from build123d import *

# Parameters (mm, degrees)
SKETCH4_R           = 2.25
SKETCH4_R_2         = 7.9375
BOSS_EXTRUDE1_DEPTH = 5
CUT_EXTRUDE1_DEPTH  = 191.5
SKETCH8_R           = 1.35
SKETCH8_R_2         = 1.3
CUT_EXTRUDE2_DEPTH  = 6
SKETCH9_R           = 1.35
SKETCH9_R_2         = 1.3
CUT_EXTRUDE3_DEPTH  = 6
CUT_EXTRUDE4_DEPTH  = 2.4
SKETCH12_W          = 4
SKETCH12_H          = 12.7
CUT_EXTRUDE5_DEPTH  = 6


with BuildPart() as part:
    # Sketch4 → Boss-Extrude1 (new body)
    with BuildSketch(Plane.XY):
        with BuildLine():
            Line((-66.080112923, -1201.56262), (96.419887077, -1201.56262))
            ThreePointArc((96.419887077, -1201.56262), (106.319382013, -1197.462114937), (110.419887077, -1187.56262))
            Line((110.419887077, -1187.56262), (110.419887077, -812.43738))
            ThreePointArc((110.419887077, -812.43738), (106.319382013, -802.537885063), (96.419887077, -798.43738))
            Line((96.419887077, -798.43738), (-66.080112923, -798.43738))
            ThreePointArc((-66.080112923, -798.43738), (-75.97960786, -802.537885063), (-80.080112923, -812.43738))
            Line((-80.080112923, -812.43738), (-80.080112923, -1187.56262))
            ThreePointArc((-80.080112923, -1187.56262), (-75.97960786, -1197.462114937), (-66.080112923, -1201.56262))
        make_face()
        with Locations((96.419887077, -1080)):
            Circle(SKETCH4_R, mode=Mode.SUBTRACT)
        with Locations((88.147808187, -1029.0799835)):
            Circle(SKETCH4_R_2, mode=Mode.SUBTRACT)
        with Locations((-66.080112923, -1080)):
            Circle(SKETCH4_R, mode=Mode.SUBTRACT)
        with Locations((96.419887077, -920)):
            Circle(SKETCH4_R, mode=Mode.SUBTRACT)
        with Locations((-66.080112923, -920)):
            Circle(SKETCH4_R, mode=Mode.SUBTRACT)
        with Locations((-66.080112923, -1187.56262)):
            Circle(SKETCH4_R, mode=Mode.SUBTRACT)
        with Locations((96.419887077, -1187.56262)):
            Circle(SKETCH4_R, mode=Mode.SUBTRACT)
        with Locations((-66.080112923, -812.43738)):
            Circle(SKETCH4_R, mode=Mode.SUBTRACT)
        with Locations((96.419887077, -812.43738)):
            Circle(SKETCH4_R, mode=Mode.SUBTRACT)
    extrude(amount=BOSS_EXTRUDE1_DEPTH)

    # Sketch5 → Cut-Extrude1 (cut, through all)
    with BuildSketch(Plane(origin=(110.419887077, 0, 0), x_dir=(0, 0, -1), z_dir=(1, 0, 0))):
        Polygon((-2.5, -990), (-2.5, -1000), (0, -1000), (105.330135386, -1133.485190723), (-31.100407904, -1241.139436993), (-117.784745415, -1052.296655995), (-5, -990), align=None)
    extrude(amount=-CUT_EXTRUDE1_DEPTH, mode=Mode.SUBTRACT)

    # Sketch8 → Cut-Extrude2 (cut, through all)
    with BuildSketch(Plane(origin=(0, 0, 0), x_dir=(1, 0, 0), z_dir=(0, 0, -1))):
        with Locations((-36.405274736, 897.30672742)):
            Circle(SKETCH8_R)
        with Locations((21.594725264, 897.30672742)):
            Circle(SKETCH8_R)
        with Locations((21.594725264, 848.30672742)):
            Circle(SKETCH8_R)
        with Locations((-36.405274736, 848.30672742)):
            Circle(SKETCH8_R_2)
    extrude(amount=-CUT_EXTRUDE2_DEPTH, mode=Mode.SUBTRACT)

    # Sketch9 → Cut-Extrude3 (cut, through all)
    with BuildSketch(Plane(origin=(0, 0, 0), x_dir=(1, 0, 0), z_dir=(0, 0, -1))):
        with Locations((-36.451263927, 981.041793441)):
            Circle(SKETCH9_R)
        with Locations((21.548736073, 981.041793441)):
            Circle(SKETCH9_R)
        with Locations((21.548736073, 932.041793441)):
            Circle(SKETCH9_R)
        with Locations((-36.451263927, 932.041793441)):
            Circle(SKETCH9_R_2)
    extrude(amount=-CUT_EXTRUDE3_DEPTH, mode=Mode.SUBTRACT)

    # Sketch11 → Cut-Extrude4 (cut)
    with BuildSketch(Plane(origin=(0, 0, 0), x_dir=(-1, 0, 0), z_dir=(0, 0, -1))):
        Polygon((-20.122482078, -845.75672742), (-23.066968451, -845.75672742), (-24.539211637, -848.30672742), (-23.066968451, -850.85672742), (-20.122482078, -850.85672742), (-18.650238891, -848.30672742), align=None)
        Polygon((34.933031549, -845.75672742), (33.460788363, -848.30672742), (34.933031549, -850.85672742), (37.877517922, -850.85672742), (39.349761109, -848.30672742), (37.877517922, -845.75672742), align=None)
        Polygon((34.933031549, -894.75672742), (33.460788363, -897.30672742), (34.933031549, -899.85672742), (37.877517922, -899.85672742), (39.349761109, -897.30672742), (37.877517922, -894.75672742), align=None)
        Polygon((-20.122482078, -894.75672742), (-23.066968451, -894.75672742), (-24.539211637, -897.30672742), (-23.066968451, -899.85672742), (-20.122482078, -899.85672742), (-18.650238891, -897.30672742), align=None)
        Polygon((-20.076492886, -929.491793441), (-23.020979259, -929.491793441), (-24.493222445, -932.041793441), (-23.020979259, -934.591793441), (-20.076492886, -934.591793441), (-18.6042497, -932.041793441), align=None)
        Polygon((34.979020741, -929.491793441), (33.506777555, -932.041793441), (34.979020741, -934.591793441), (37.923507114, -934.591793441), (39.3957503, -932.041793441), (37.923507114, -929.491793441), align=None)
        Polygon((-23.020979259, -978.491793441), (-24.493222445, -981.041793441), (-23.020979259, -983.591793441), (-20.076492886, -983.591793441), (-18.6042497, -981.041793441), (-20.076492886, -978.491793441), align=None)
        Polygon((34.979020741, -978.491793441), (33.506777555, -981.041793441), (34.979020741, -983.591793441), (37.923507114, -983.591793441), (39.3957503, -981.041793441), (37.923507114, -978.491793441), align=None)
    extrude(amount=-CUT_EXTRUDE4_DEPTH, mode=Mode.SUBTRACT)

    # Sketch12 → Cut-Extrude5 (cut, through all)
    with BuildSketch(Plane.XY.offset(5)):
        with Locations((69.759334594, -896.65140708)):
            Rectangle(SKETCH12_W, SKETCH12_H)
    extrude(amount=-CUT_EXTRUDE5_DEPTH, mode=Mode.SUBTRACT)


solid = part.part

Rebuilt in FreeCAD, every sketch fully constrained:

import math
import FreeCAD as App
import Part
import Sketcher
from FreeCAD import Vector
Q = App.Units.Quantity

doc = App.newDocument("Part")
body = doc.addObject("PartDesign::Body", "Body")

sketch1 = doc.addObject("Sketcher::SketchObject", "Sketch")
body.addObject(sketch1)
sketch1.AttachmentSupport = (doc.XY_Plane, [""])
sketch1.MapMode = "FlatFace"
sketch1.addGeometry(Part.LineSegment(Vector(-66.080113, -1201.56262, 0), Vector(96.419887, -1201.56262, 0)), False)
sketch1.addGeometry(Part.ArcOfCircle(Part.Circle(Vector(96.419887, -1187.56262, 0), Vector(0, 0, 1), 14), math.radians(-90), math.radians(0)), False)
sketch1.addGeometry(Part.LineSegment(Vector(110.419887, -1187.56262, 0), Vector(110.419887, -812.43738, 0)), False)
sketch1.addGeometry(Part.ArcOfCircle(Part.Circle(Vector(96.419887, -812.43738, 0), Vector(0, 0, 1), 14), math.radians(0), math.radians(90)), False)
sketch1.addGeometry(Part.LineSegment(Vector(96.419887, -798.43738, 0), Vector(-66.080113, -798.43738, 0)), False)
sketch1.addGeometry(Part.ArcOfCircle(Part.Circle(Vector(-66.080113, -812.43738, 0), Vector(0, 0, 1), 14), math.radians(90), math.radians(180)), False)
sketch1.addGeometry(Part.LineSegment(Vector(-80.080113, -812.43738, 0), Vector(-80.080113, -1187.56262, 0)), False)
sketch1.addGeometry(Part.ArcOfCircle(Part.Circle(Vector(-66.080113, -1187.56262, 0), Vector(0, 0, 1), 14), math.radians(180), math.radians(270)), False)
sketch1.addGeometry(Part.Circle(Vector(-66.080113, -1187.56262, 0), Vector(0, 0, 1), 2.25), False)
sketch1.addGeometry(Part.Circle(Vector(-66.080113, -1080, 0), Vector(0, 0, 1), 2.25), False)
sketch1.addGeometry(Part.Circle(Vector(96.419887, -1187.56262, 0), Vector(0, 0, 1), 2.25), False)
sketch1.addGeometry(Part.Circle(Vector(96.419887, -1080, 0), Vector(0, 0, 1), 2.25), False)
sketch1.addGeometry(Part.Circle(Vector(88.147808, -1029.079984, 0), Vector(0, 0, 1), 7.9375), False)
sketch1.addGeometry(Part.Circle(Vector(-66.080113, -920, 0), Vector(0, 0, 1), 2.25), False)
sketch1.addGeometry(Part.Circle(Vector(-66.080113, -812.43738, 0), Vector(0, 0, 1), 2.25), False)
sketch1.addGeometry(Part.Circle(Vector(96.419887, -920, 0), Vector(0, 0, 1), 2.25), False)
sketch1.addGeometry(Part.Circle(Vector(96.419887, -812.43738, 0), Vector(0, 0, 1), 2.25), False)
sketch1.addConstraint(Sketcher.Constraint("Tangent", 0, 2, 1, 1))
sketch1.addConstraint(Sketcher.Constraint("Tangent", 1, 2, 2, 1))
sketch1.addConstraint(Sketcher.Constraint("Tangent", 2, 2, 3, 1))
sketch1.addConstraint(Sketcher.Constraint("Tangent", 3, 2, 4, 1))
sketch1.addConstraint(Sketcher.Constraint("Tangent", 4, 2, 5, 1))
sketch1.addConstraint(Sketcher.Constraint("Tangent", 5, 2, 6, 1))
sketch1.addConstraint(Sketcher.Constraint("Tangent", 6, 2, 7, 1))
sketch1.addConstraint(Sketcher.Constraint("Tangent", 7, 2, 0, 1))
sketch1.addConstraint(Sketcher.Constraint("Horizontal", 0))
sketch1.addConstraint(Sketcher.Constraint("Vertical", 2))
sketch1.addConstraint(Sketcher.Constraint("Horizontal", 4))
sketch1.addConstraint(Sketcher.Constraint("Vertical", 6))
sketch1.addConstraint(Sketcher.Constraint("Coincident", 8, 3, 7, 3))
sketch1.addConstraint(Sketcher.Constraint("Coincident", 10, 3, 1, 3))
sketch1.addConstraint(Sketcher.Constraint("Coincident", 14, 3, 5, 3))
sketch1.addConstraint(Sketcher.Constraint("Coincident", 16, 3, 3, 3))
sketch1.addConstraint(Sketcher.Constraint("Equal", 1, 3))
sketch1.addConstraint(Sketcher.Constraint("Equal", 3, 5))
sketch1.addConstraint(Sketcher.Constraint("Equal", 5, 7))
sketch1.addConstraint(Sketcher.Constraint("Equal", 8, 9))
sketch1.addConstraint(Sketcher.Constraint("Equal", 9, 10))
sketch1.addConstraint(Sketcher.Constraint("Equal", 10, 11))
sketch1.addConstraint(Sketcher.Constraint("Equal", 11, 13))
sketch1.addConstraint(Sketcher.Constraint("Equal", 13, 14))
sketch1.addConstraint(Sketcher.Constraint("Equal", 14, 15))
sketch1.addConstraint(Sketcher.Constraint("Equal", 15, 16))
sketch1.addConstraint(Sketcher.Constraint("Horizontal", 9, 3, 11, 3))
sketch1.addConstraint(Sketcher.Constraint("Horizontal", 13, 3, 15, 3))
sketch1.addConstraint(Sketcher.Constraint("Vertical", 8, 3, 9, 3))
sketch1.addConstraint(Sketcher.Constraint("Vertical", 10, 3, 11, 3))
sketch1.addConstraint(Sketcher.Constraint("Vertical", 9, 3, 13, 3))
sketch1.addConstraint(Sketcher.Constraint("Vertical", 11, 3, 15, 3))
sketch1.addConstraint(Sketcher.Constraint("Radius", 1, 14.0))
sketch1.addConstraint(Sketcher.Constraint("Diameter", 8, 4.5))
sketch1.addConstraint(Sketcher.Constraint("Diameter", 12, 15.875))
sketch1.addConstraint(Sketcher.Constraint("DistanceX", 0, 1, 0, 2, 162.5))
sketch1.addConstraint(Sketcher.Constraint("DistanceY", 9, 3, -1, 1, 1080.0))
sketch1.addConstraint(Sketcher.Constraint("DistanceY", 13, 3, -1, 1, 920.0))
sketch1.addConstraint(Sketcher.Constraint("DistanceY", 2, 1, 2, 2, 375.12524))
sketch1.addConstraint(Sketcher.Constraint("DistanceY", 1, 3, -1, 1, 1187.56262))
sketch1.addConstraint(Sketcher.Constraint("DistanceX", -1, 1, 12, 3, 88.147808))
sketch1.addConstraint(Sketcher.Constraint("DistanceX", 12, 3, 11, 3, 8.272079))
sketch1.addConstraint(Sketcher.Constraint("DistanceY", 12, 3, -1, 1, 1029.079984))
pad1 = doc.addObject("PartDesign::Pad", "Pad")
body.addObject(pad1)
pad1.Profile = sketch1
pad1.Length = 5

sketch2 = doc.addObject("Sketcher::SketchObject", "Sketch001")
body.addObject(sketch2)
sketch2.AttachmentSupport = (doc.YZ_Plane, [""])
sketch2.MapMode = "FlatFace"
sketch2.AttachmentOffset = App.Placement(Vector(0, 0, 110.419887), App.Rotation())
sketch2.addGeometry(Part.LineSegment(Vector(-1000, 2.5, 0), Vector(-990, 2.5, 0)), False)
sketch2.addGeometry(Part.LineSegment(Vector(-990, 2.5, 0), Vector(-990, 5, 0)), False)
sketch2.addGeometry(Part.LineSegment(Vector(-990, 5, 0), Vector(-1052.296656, 117.784745, 0)), False)
sketch2.addGeometry(Part.LineSegment(Vector(-1052.296656, 117.784745, 0), Vector(-1241.139437, 31.100408, 0)), False)
sketch2.addGeometry(Part.LineSegment(Vector(-1241.139437, 31.100408, 0), Vector(-1133.485191, -105.330135, 0)), False)
sketch2.addGeometry(Part.LineSegment(Vector(-1133.485191, -105.330135, 0), Vector(-1000, 0, 0)), False)
sketch2.addGeometry(Part.LineSegment(Vector(-1000, 0, 0), Vector(-1000, 2.5, 0)), False)
sketch2.addConstraint(Sketcher.Constraint("Coincident", 0, 2, 1, 1))
sketch2.addConstraint(Sketcher.Constraint("Coincident", 1, 2, 2, 1))
sketch2.addConstraint(Sketcher.Constraint("Coincident", 2, 2, 3, 1))
sketch2.addConstraint(Sketcher.Constraint("Coincident", 3, 2, 4, 1))
sketch2.addConstraint(Sketcher.Constraint("Coincident", 4, 2, 5, 1))
sketch2.addConstraint(Sketcher.Constraint("Coincident", 5, 2, 6, 1))
sketch2.addConstraint(Sketcher.Constraint("Coincident", 6, 2, 0, 1))
sketch2.addConstraint(Sketcher.Constraint("Horizontal", 0))
sketch2.addConstraint(Sketcher.Constraint("Vertical", 1))
sketch2.addConstraint(Sketcher.Constraint("Vertical", 6))
sketch2.addConstraint(Sketcher.Constraint("PointOnObject", 5, 2, -1))
sketch2.addConstraint(Sketcher.Constraint("Perpendicular", 4, 5))
sketch2.addConstraint(Sketcher.Constraint("Equal", 1, 6))
sketch2.addConstraint(Sketcher.Constraint("DistanceX", 0, 1, 0, 2, 10.0))
sketch2.addConstraint(Sketcher.Constraint("DistanceY", 1, 1, 1, 2, 2.5))
sketch2.addConstraint(Sketcher.Constraint("DistanceX", 0, 2, -1, 1, 990.0))
sketch2.addConstraint(Sketcher.Constraint("Distance", 3, 207.787801))
sketch2.addConstraint(Sketcher.Constraint("DistanceX", 4, 2, -1, 1, 1133.485191))
sketch2.addConstraint(Sketcher.Constraint("DistanceX", 3, 2, 2, 2, 188.842781))
sketch2.addConstraint(Sketcher.Constraint("DistanceY", 4, 2, 2, 2, 223.114881))
sketch2.addConstraint(Sketcher.Constraint("Distance", 2, 128.845924))
pocket1 = doc.addObject("PartDesign::Pocket", "Pocket")
body.addObject(pocket1)
pocket1.Profile = sketch2
pocket1.Type = "ThroughAll"

sketch3 = doc.addObject("Sketcher::SketchObject", "Sketch002")
body.addObject(sketch3)
sketch3.AttachmentSupport = (doc.XY_Plane, [""])
sketch3.MapMode = "FlatFace"
sketch3.addGeometry(Part.Circle(Vector(-36.405275, -897.306727, 0), Vector(0, 0, 1), 1.35), False)
sketch3.addGeometry(Part.Circle(Vector(21.594725, -897.306727, 0), Vector(0, 0, 1), 1.35), False)
sketch3.addGeometry(Part.Circle(Vector(21.594725, -848.306727, 0), Vector(0, 0, 1), 1.35), False)
sketch3.addGeometry(Part.Circle(Vector(-36.405275, -848.306727, 0), Vector(0, 0, 1), 1.3), False)
sketch3.addConstraint(Sketcher.Constraint("Equal", 0, 1))
sketch3.addConstraint(Sketcher.Constraint("Equal", 1, 2))
sketch3.addConstraint(Sketcher.Constraint("Horizontal", 0, 3, 1, 3))
sketch3.addConstraint(Sketcher.Constraint("Horizontal", 2, 3, 3, 3))
sketch3.addConstraint(Sketcher.Constraint("Vertical", 1, 3, 2, 3))
sketch3.addConstraint(Sketcher.Constraint("Vertical", 0, 3, 3, 3))
sketch3.addConstraint(Sketcher.Constraint("Diameter", 0, 2.7))
sketch3.addConstraint(Sketcher.Constraint("Diameter", 3, 2.6))
sketch3.addConstraint(Sketcher.Constraint("DistanceX", 0, 3, 1, 3, 58.0))
sketch3.addConstraint(Sketcher.Constraint("DistanceY", 1, 3, 2, 3, 49.0))
sketch3.addConstraint(Sketcher.Constraint("DistanceX", 0, 3, -1, 1, 36.405275))
sketch3.addConstraint(Sketcher.Constraint("DistanceY", 0, 3, -1, 1, 897.306727))
pocket2 = doc.addObject("PartDesign::Pocket", "Pocket001")
body.addObject(pocket2)
pocket2.Profile = sketch3
pocket2.Type = "ThroughAll"
pocket2.Reversed = True

sketch4 = doc.addObject("Sketcher::SketchObject", "Sketch003")
body.addObject(sketch4)
sketch4.AttachmentSupport = (doc.XY_Plane, [""])
sketch4.MapMode = "FlatFace"
sketch4.addGeometry(Part.Circle(Vector(-36.451264, -981.041793, 0), Vector(0, 0, 1), 1.35), False)
sketch4.addGeometry(Part.Circle(Vector(21.548736, -981.041793, 0), Vector(0, 0, 1), 1.35), False)
sketch4.addGeometry(Part.Circle(Vector(21.548736, -932.041793, 0), Vector(0, 0, 1), 1.35), False)
sketch4.addGeometry(Part.Circle(Vector(-36.451264, -932.041793, 0), Vector(0, 0, 1), 1.3), False)
sketch4.addConstraint(Sketcher.Constraint("Equal", 0, 1))
sketch4.addConstraint(Sketcher.Constraint("Equal", 1, 2))
sketch4.addConstraint(Sketcher.Constraint("Horizontal", 0, 3, 1, 3))
sketch4.addConstraint(Sketcher.Constraint("Horizontal", 2, 3, 3, 3))
sketch4.addConstraint(Sketcher.Constraint("Vertical", 1, 3, 2, 3))
sketch4.addConstraint(Sketcher.Constraint("Vertical", 0, 3, 3, 3))
sketch4.addConstraint(Sketcher.Constraint("Diameter", 0, 2.7))
sketch4.addConstraint(Sketcher.Constraint("Diameter", 3, 2.6))
sketch4.addConstraint(Sketcher.Constraint("DistanceX", 0, 3, 1, 3, 58.0))
sketch4.addConstraint(Sketcher.Constraint("DistanceY", 1, 3, 2, 3, 49.0))
sketch4.addConstraint(Sketcher.Constraint("DistanceX", 0, 3, -1, 1, 36.451264))
sketch4.addConstraint(Sketcher.Constraint("DistanceY", 0, 3, -1, 1, 981.041793))
pocket3 = doc.addObject("PartDesign::Pocket", "Pocket002")
body.addObject(pocket3)
pocket3.Profile = sketch4
pocket3.Type = "ThroughAll"
pocket3.Reversed = True

sketch5 = doc.addObject("Sketcher::SketchObject", "Sketch004")
body.addObject(sketch5)
sketch5.AttachmentSupport = (doc.XY_Plane, [""])
sketch5.MapMode = "FlatFace"
sketch5.addGeometry(Part.LineSegment(Vector(20.122482, -845.756727, 0), Vector(23.066968, -845.756727, 0)), False)
sketch5.addGeometry(Part.LineSegment(Vector(23.066968, -845.756727, 0), Vector(24.539212, -848.306727, 0)), False)
sketch5.addGeometry(Part.LineSegment(Vector(24.539212, -848.306727, 0), Vector(23.066968, -850.856727, 0)), False)
sketch5.addGeometry(Part.LineSegment(Vector(23.066968, -850.856727, 0), Vector(20.122482, -850.856727, 0)), False)
sketch5.addGeometry(Part.LineSegment(Vector(20.122482, -850.856727, 0), Vector(18.650239, -848.306727, 0)), False)
sketch5.addGeometry(Part.LineSegment(Vector(18.650239, -848.306727, 0), Vector(20.122482, -845.756727, 0)), False)
sketch5.addGeometry(Part.LineSegment(Vector(-34.933032, -845.756727, 0), Vector(-33.460788, -848.306727, 0)), False)
sketch5.addGeometry(Part.LineSegment(Vector(-33.460788, -848.306727, 0), Vector(-34.933032, -850.856727, 0)), False)
sketch5.addGeometry(Part.LineSegment(Vector(-34.933032, -850.856727, 0), Vector(-37.877518, -850.856727, 0)), False)
sketch5.addGeometry(Part.LineSegment(Vector(-37.877518, -850.856727, 0), Vector(-39.349761, -848.306727, 0)), False)
sketch5.addGeometry(Part.LineSegment(Vector(-39.349761, -848.306727, 0), Vector(-37.877518, -845.756727, 0)), False)
sketch5.addGeometry(Part.LineSegment(Vector(-37.877518, -845.756727, 0), Vector(-34.933032, -845.756727, 0)), False)
sketch5.addGeometry(Part.LineSegment(Vector(-34.933032, -894.756727, 0), Vector(-33.460788, -897.306727, 0)), False)
sketch5.addGeometry(Part.LineSegment(Vector(-33.460788, -897.306727, 0), Vector(-34.933032, -899.856727, 0)), False)
sketch5.addGeometry(Part.LineSegment(Vector(-34.933032, -899.856727, 0), Vector(-37.877518, -899.856727, 0)), False)
sketch5.addGeometry(Part.LineSegment(Vector(-37.877518, -899.856727, 0), Vector(-39.349761, -897.306727, 0)), False)
sketch5.addGeometry(Part.LineSegment(Vector(-39.349761, -897.306727, 0), Vector(-37.877518, -894.756727, 0)), False)
sketch5.addGeometry(Part.LineSegment(Vector(-37.877518, -894.756727, 0), Vector(-34.933032, -894.756727, 0)), False)
sketch5.addGeometry(Part.LineSegment(Vector(20.122482, -894.756727, 0), Vector(23.066968, -894.756727, 0)), False)
sketch5.addGeometry(Part.LineSegment(Vector(23.066968, -894.756727, 0), Vector(24.539212, -897.306727, 0)), False)
sketch5.addGeometry(Part.LineSegment(Vector(24.539212, -897.306727, 0), Vector(23.066968, -899.856727, 0)), False)
sketch5.addGeometry(Part.LineSegment(Vector(23.066968, -899.856727, 0), Vector(20.122482, -899.856727, 0)), False)
sketch5.addGeometry(Part.LineSegment(Vector(20.122482, -899.856727, 0), Vector(18.650239, -897.306727, 0)), False)
sketch5.addGeometry(Part.LineSegment(Vector(18.650239, -897.306727, 0), Vector(20.122482, -894.756727, 0)), False)
sketch5.addGeometry(Part.LineSegment(Vector(20.076493, -929.491793, 0), Vector(23.020979, -929.491793, 0)), False)
sketch5.addGeometry(Part.LineSegment(Vector(23.020979, -929.491793, 0), Vector(24.493222, -932.041793, 0)), False)
sketch5.addGeometry(Part.LineSegment(Vector(24.493222, -932.041793, 0), Vector(23.020979, -934.591793, 0)), False)
sketch5.addGeometry(Part.LineSegment(Vector(23.020979, -934.591793, 0), Vector(20.076493, -934.591793, 0)), False)
sketch5.addGeometry(Part.LineSegment(Vector(20.076493, -934.591793, 0), Vector(18.60425, -932.041793, 0)), False)
sketch5.addGeometry(Part.LineSegment(Vector(18.60425, -932.041793, 0), Vector(20.076493, -929.491793, 0)), False)
sketch5.addGeometry(Part.LineSegment(Vector(-34.979021, -929.491793, 0), Vector(-33.506778, -932.041793, 0)), False)
sketch5.addGeometry(Part.LineSegment(Vector(-33.506778, -932.041793, 0), Vector(-34.979021, -934.591793, 0)), False)
sketch5.addGeometry(Part.LineSegment(Vector(-34.979021, -934.591793, 0), Vector(-37.923507, -934.591793, 0)), False)
sketch5.addGeometry(Part.LineSegment(Vector(-37.923507, -934.591793, 0), Vector(-39.39575, -932.041793, 0)), False)
sketch5.addGeometry(Part.LineSegment(Vector(-39.39575, -932.041793, 0), Vector(-37.923507, -929.491793, 0)), False)
sketch5.addGeometry(Part.LineSegment(Vector(-37.923507, -929.491793, 0), Vector(-34.979021, -929.491793, 0)), False)
sketch5.addGeometry(Part.LineSegment(Vector(23.020979, -978.491793, 0), Vector(24.493222, -981.041793, 0)), False)
sketch5.addGeometry(Part.LineSegment(Vector(24.493222, -981.041793, 0), Vector(23.020979, -983.591793, 0)), False)
sketch5.addGeometry(Part.LineSegment(Vector(23.020979, -983.591793, 0), Vector(20.076493, -983.591793, 0)), False)
sketch5.addGeometry(Part.LineSegment(Vector(20.076493, -983.591793, 0), Vector(18.60425, -981.041793, 0)), False)
sketch5.addGeometry(Part.LineSegment(Vector(18.60425, -981.041793, 0), Vector(20.076493, -978.491793, 0)), False)
sketch5.addGeometry(Part.LineSegment(Vector(20.076493, -978.491793, 0), Vector(23.020979, -978.491793, 0)), False)
sketch5.addGeometry(Part.LineSegment(Vector(-34.979021, -978.491793, 0), Vector(-33.506778, -981.041793, 0)), False)
sketch5.addGeometry(Part.LineSegment(Vector(-33.506778, -981.041793, 0), Vector(-34.979021, -983.591793, 0)), False)
sketch5.addGeometry(Part.LineSegment(Vector(-34.979021, -983.591793, 0), Vector(-37.923507, -983.591793, 0)), False)
sketch5.addGeometry(Part.LineSegment(Vector(-37.923507, -983.591793, 0), Vector(-39.39575, -981.041793, 0)), False)
sketch5.addGeometry(Part.LineSegment(Vector(-39.39575, -981.041793, 0), Vector(-37.923507, -978.491793, 0)), False)
sketch5.addGeometry(Part.LineSegment(Vector(-37.923507, -978.491793, 0), Vector(-34.979021, -978.491793, 0)), False)
sketch5.addConstraint(Sketcher.Constraint("Coincident", 0, 2, 1, 1))
sketch5.addConstraint(Sketcher.Constraint("Coincident", 1, 2, 2, 1))
sketch5.addConstraint(Sketcher.Constraint("Coincident", 2, 2, 3, 1))
sketch5.addConstraint(Sketcher.Constraint("Coincident", 3, 2, 4, 1))
sketch5.addConstraint(Sketcher.Constraint("Coincident", 4, 2, 5, 1))
sketch5.addConstraint(Sketcher.Constraint("Coincident", 5, 2, 0, 1))
sketch5.addConstraint(Sketcher.Constraint("Coincident", 6, 2, 7, 1))
sketch5.addConstraint(Sketcher.Constraint("Coincident", 7, 2, 8, 1))
sketch5.addConstraint(Sketcher.Constraint("Coincident", 8, 2, 9, 1))
sketch5.addConstraint(Sketcher.Constraint("Coincident", 9, 2, 10, 1))
sketch5.addConstraint(Sketcher.Constraint("Coincident", 10, 2, 11, 1))
sketch5.addConstraint(Sketcher.Constraint("Coincident", 11, 2, 6, 1))
sketch5.addConstraint(Sketcher.Constraint("Coincident", 12, 2, 13, 1))
sketch5.addConstraint(Sketcher.Constraint("Coincident", 13, 2, 14, 1))
sketch5.addConstraint(Sketcher.Constraint("Coincident", 14, 2, 15, 1))
sketch5.addConstraint(Sketcher.Constraint("Coincident", 15, 2, 16, 1))
sketch5.addConstraint(Sketcher.Constraint("Coincident", 16, 2, 17, 1))
sketch5.addConstraint(Sketcher.Constraint("Coincident", 17, 2, 12, 1))
sketch5.addConstraint(Sketcher.Constraint("Coincident", 18, 2, 19, 1))
sketch5.addConstraint(Sketcher.Constraint("Coincident", 19, 2, 20, 1))
sketch5.addConstraint(Sketcher.Constraint("Coincident", 20, 2, 21, 1))
sketch5.addConstraint(Sketcher.Constraint("Coincident", 21, 2, 22, 1))
sketch5.addConstraint(Sketcher.Constraint("Coincident", 22, 2, 23, 1))
sketch5.addConstraint(Sketcher.Constraint("Coincident", 23, 2, 18, 1))
sketch5.addConstraint(Sketcher.Constraint("Coincident", 24, 2, 25, 1))
sketch5.addConstraint(Sketcher.Constraint("Coincident", 25, 2, 26, 1))
sketch5.addConstraint(Sketcher.Constraint("Coincident", 26, 2, 27, 1))
sketch5.addConstraint(Sketcher.Constraint("Coincident", 27, 2, 28, 1))
sketch5.addConstraint(Sketcher.Constraint("Coincident", 28, 2, 29, 1))
sketch5.addConstraint(Sketcher.Constraint("Coincident", 29, 2, 24, 1))
sketch5.addConstraint(Sketcher.Constraint("Coincident", 30, 2, 31, 1))
sketch5.addConstraint(Sketcher.Constraint("Coincident", 31, 2, 32, 1))
sketch5.addConstraint(Sketcher.Constraint("Coincident", 32, 2, 33, 1))
sketch5.addConstraint(Sketcher.Constraint("Coincident", 33, 2, 34, 1))
sketch5.addConstraint(Sketcher.Constraint("Coincident", 34, 2, 35, 1))
sketch5.addConstraint(Sketcher.Constraint("Coincident", 35, 2, 30, 1))
sketch5.addConstraint(Sketcher.Constraint("Coincident", 36, 2, 37, 1))
sketch5.addConstraint(Sketcher.Constraint("Coincident", 37, 2, 38, 1))
sketch5.addConstraint(Sketcher.Constraint("Coincident", 38, 2, 39, 1))
sketch5.addConstraint(Sketcher.Constraint("Coincident", 39, 2, 40, 1))
sketch5.addConstraint(Sketcher.Constraint("Coincident", 40, 2, 41, 1))
sketch5.addConstraint(Sketcher.Constraint("Coincident", 41, 2, 36, 1))
sketch5.addConstraint(Sketcher.Constraint("Coincident", 42, 2, 43, 1))
sketch5.addConstraint(Sketcher.Constraint("Coincident", 43, 2, 44, 1))
sketch5.addConstraint(Sketcher.Constraint("Coincident", 44, 2, 45, 1))
sketch5.addConstraint(Sketcher.Constraint("Coincident", 45, 2, 46, 1))
sketch5.addConstraint(Sketcher.Constraint("Coincident", 46, 2, 47, 1))
sketch5.addConstraint(Sketcher.Constraint("Coincident", 47, 2, 42, 1))
sketch5.addConstraint(Sketcher.Constraint("Horizontal", 0))
sketch5.addConstraint(Sketcher.Constraint("Horizontal", 3))
sketch5.addConstraint(Sketcher.Constraint("Horizontal", 8))
sketch5.addConstraint(Sketcher.Constraint("Horizontal", 11))
sketch5.addConstraint(Sketcher.Constraint("Horizontal", 14))
sketch5.addConstraint(Sketcher.Constraint("Horizontal", 17))
sketch5.addConstraint(Sketcher.Constraint("Horizontal", 18))
sketch5.addConstraint(Sketcher.Constraint("Horizontal", 21))
sketch5.addConstraint(Sketcher.Constraint("Horizontal", 24))
sketch5.addConstraint(Sketcher.Constraint("Horizontal", 27))
sketch5.addConstraint(Sketcher.Constraint("Horizontal", 32))
sketch5.addConstraint(Sketcher.Constraint("Horizontal", 35))
sketch5.addConstraint(Sketcher.Constraint("Horizontal", 38))
sketch5.addConstraint(Sketcher.Constraint("Horizontal", 41))
sketch5.addConstraint(Sketcher.Constraint("Horizontal", 44))
sketch5.addConstraint(Sketcher.Constraint("Horizontal", 47))
sketch5.addConstraint(Sketcher.Constraint("Parallel", 1, 4))
sketch5.addConstraint(Sketcher.Constraint("Parallel", 2, 5))
sketch5.addConstraint(Sketcher.Constraint("Parallel", 4, 6))
sketch5.addConstraint(Sketcher.Constraint("Parallel", 5, 7))
sketch5.addConstraint(Sketcher.Constraint("Parallel", 6, 9))
sketch5.addConstraint(Sketcher.Constraint("Parallel", 7, 10))
sketch5.addConstraint(Sketcher.Constraint("Parallel", 9, 12))
sketch5.addConstraint(Sketcher.Constraint("Parallel", 10, 13))
sketch5.addConstraint(Sketcher.Constraint("Parallel", 12, 15))
sketch5.addConstraint(Sketcher.Constraint("Parallel", 13, 16))
sketch5.addConstraint(Sketcher.Constraint("Parallel", 15, 19))
sketch5.addConstraint(Sketcher.Constraint("Parallel", 16, 20))
sketch5.addConstraint(Sketcher.Constraint("Parallel", 19, 22))
sketch5.addConstraint(Sketcher.Constraint("Parallel", 20, 23))
sketch5.addConstraint(Sketcher.Constraint("Parallel", 22, 25))
sketch5.addConstraint(Sketcher.Constraint("Parallel", 23, 26))
sketch5.addConstraint(Sketcher.Constraint("Parallel", 25, 28))
sketch5.addConstraint(Sketcher.Constraint("Parallel", 26, 29))
sketch5.addConstraint(Sketcher.Constraint("Parallel", 28, 30))
sketch5.addConstraint(Sketcher.Constraint("Parallel", 29, 31))
sketch5.addConstraint(Sketcher.Constraint("Parallel", 30, 33))
sketch5.addConstraint(Sketcher.Constraint("Parallel", 31, 34))
sketch5.addConstraint(Sketcher.Constraint("Parallel", 33, 36))
sketch5.addConstraint(Sketcher.Constraint("Parallel", 34, 37))
sketch5.addConstraint(Sketcher.Constraint("Parallel", 36, 39))
sketch5.addConstraint(Sketcher.Constraint("Parallel", 37, 40))
sketch5.addConstraint(Sketcher.Constraint("Parallel", 39, 42))
sketch5.addConstraint(Sketcher.Constraint("Parallel", 40, 43))
sketch5.addConstraint(Sketcher.Constraint("Parallel", 42, 45))
sketch5.addConstraint(Sketcher.Constraint("Parallel", 43, 46))
sketch5.addConstraint(Sketcher.Constraint("Horizontal", 1, 2, 4, 2))
sketch5.addConstraint(Sketcher.Constraint("Horizontal", 4, 2, 6, 2))
sketch5.addConstraint(Sketcher.Constraint("Horizontal", 3, 2, 7, 2))
sketch5.addConstraint(Sketcher.Constraint("Horizontal", 6, 2, 9, 2))
sketch5.addConstraint(Sketcher.Constraint("Horizontal", 5, 2, 10, 2))
sketch5.addConstraint(Sketcher.Constraint("Horizontal", 12, 2, 15, 2))
sketch5.addConstraint(Sketcher.Constraint("Horizontal", 17, 2, 18, 2))
sketch5.addConstraint(Sketcher.Constraint("Horizontal", 15, 2, 19, 2))
sketch5.addConstraint(Sketcher.Constraint("Horizontal", 14, 2, 20, 2))
sketch5.addConstraint(Sketcher.Constraint("Horizontal", 19, 2, 22, 2))
sketch5.addConstraint(Sketcher.Constraint("Horizontal", 25, 2, 28, 2))
sketch5.addConstraint(Sketcher.Constraint("Horizontal", 28, 2, 30, 2))
sketch5.addConstraint(Sketcher.Constraint("Horizontal", 27, 2, 31, 2))
sketch5.addConstraint(Sketcher.Constraint("Horizontal", 30, 2, 33, 2))
sketch5.addConstraint(Sketcher.Constraint("Horizontal", 29, 2, 34, 2))
sketch5.addConstraint(Sketcher.Constraint("Horizontal", 36, 2, 39, 2))
sketch5.addConstraint(Sketcher.Constraint("Horizontal", 39, 2, 42, 2))
sketch5.addConstraint(Sketcher.Constraint("Horizontal", 38, 2, 43, 2))
sketch5.addConstraint(Sketcher.Constraint("Horizontal", 42, 2, 45, 2))
sketch5.addConstraint(Sketcher.Constraint("Horizontal", 41, 2, 46, 2))
sketch5.addConstraint(Sketcher.Constraint("Vertical", 0, 2, 2, 2))
sketch5.addConstraint(Sketcher.Constraint("Vertical", 3, 2, 5, 2))
sketch5.addConstraint(Sketcher.Constraint("Vertical", 6, 2, 12, 2))
sketch5.addConstraint(Sketcher.Constraint("Vertical", 11, 2, 13, 2))
sketch5.addConstraint(Sketcher.Constraint("Vertical", 10, 2, 14, 2))
sketch5.addConstraint(Sketcher.Constraint("Vertical", 14, 2, 16, 2))
sketch5.addConstraint(Sketcher.Constraint("Vertical", 2, 2, 18, 2))
sketch5.addConstraint(Sketcher.Constraint("Vertical", 5, 2, 21, 2))
sketch5.addConstraint(Sketcher.Constraint("Vertical", 24, 2, 26, 2))
sketch5.addConstraint(Sketcher.Constraint("Vertical", 25, 2, 36, 2))
sketch5.addConstraint(Sketcher.Constraint("Vertical", 26, 2, 37, 2))
sketch5.addConstraint(Sketcher.Constraint("Vertical", 29, 2, 38, 2))
sketch5.addConstraint(Sketcher.Constraint("Vertical", 38, 2, 40, 2))
sketch5.addConstraint(Sketcher.Constraint("Vertical", 30, 2, 42, 2))
sketch5.addConstraint(Sketcher.Constraint("Vertical", 34, 2, 44, 2))
sketch5.addConstraint(Sketcher.Constraint("Equal", 3, 8))
sketch5.addConstraint(Sketcher.Constraint("Equal", 21, 24))
sketch5.addConstraint(Sketcher.Constraint("Equal", 27, 32))
sketch5.addConstraint(Sketcher.Constraint("Equal", 23, 25))
sketch5.addConstraint(Sketcher.Constraint("Angle", 1, Q("-60 deg")))
sketch5.addConstraint(Sketcher.Constraint("DistanceX", 7, 2, 2, 2, 58.0))
sketch5.addConstraint(Sketcher.Constraint("DistanceY", 12, 2, 6, 2, 49.0))
sketch5.addConstraint(Sketcher.Constraint("DistanceY", 36, 2, 25, 2, 49.0))
sketch5.addConstraint(Sketcher.Constraint("DistanceY", 2, 2, 0, 2, 5.1))
sketch5.addConstraint(Sketcher.Constraint("DistanceX", 0, 1, 0, 2, 2.944486))
sketch5.addConstraint(Sketcher.Constraint("DistanceX", -1, 1, 0, 2, 23.066968))
sketch5.addConstraint(Sketcher.Constraint("DistanceX", -1, 1, 24, 2, 23.020979))
sketch5.addConstraint(Sketcher.Constraint("DistanceX", 31, 2, -1, 1, 34.979021))
sketch5.addConstraint(Sketcher.Constraint("DistanceY", 0, 2, -1, 1, 845.756727))
sketch5.addConstraint(Sketcher.Constraint("DistanceY", 24, 2, -1, 1, 929.491793))
pocket4 = doc.addObject("PartDesign::Pocket", "Pocket003")
body.addObject(pocket4)
pocket4.Profile = sketch5
pocket4.Length = 2.4
pocket4.Reversed = True

sketch6 = doc.addObject("Sketcher::SketchObject", "Sketch005")
body.addObject(sketch6)
sketch6.AttachmentSupport = (doc.XY_Plane, [""])
sketch6.MapMode = "FlatFace"
sketch6.AttachmentOffset = App.Placement(Vector(0, 0, 5), App.Rotation())
sketch6.addGeometry(Part.LineSegment(Vector(67.759335, -890.301407, 0), Vector(67.759335, -903.001407, 0)), False)
sketch6.addGeometry(Part.LineSegment(Vector(67.759335, -903.001407, 0), Vector(71.759335, -903.001407, 0)), False)
sketch6.addGeometry(Part.LineSegment(Vector(71.759335, -903.001407, 0), Vector(71.759335, -890.301407, 0)), False)
sketch6.addGeometry(Part.LineSegment(Vector(71.759335, -890.301407, 0), Vector(67.759335, -890.301407, 0)), False)
sketch6.addConstraint(Sketcher.Constraint("Coincident", 0, 2, 1, 1))
sketch6.addConstraint(Sketcher.Constraint("Coincident", 1, 2, 2, 1))
sketch6.addConstraint(Sketcher.Constraint("Coincident", 2, 2, 3, 1))
sketch6.addConstraint(Sketcher.Constraint("Coincident", 3, 2, 0, 1))
sketch6.addConstraint(Sketcher.Constraint("Vertical", 0))
sketch6.addConstraint(Sketcher.Constraint("Horizontal", 1))
sketch6.addConstraint(Sketcher.Constraint("Vertical", 2))
sketch6.addConstraint(Sketcher.Constraint("Horizontal", 3))
sketch6.addConstraint(Sketcher.Constraint("DistanceX", 1, 1, 1, 2, 4.0))
sketch6.addConstraint(Sketcher.Constraint("DistanceY", 0, 2, 0, 1, 12.7))
sketch6.addConstraint(Sketcher.Constraint("DistanceX", -1, 1, 0, 2, 67.759335))
sketch6.addConstraint(Sketcher.Constraint("DistanceY", 0, 2, -1, 1, 903.001407))
pocket5 = doc.addObject("PartDesign::Pocket", "Pocket004")
body.addObject(pocket5)
pocket5.Profile = sketch6
pocket5.Type = "ThroughAll"

doc.recompute()
